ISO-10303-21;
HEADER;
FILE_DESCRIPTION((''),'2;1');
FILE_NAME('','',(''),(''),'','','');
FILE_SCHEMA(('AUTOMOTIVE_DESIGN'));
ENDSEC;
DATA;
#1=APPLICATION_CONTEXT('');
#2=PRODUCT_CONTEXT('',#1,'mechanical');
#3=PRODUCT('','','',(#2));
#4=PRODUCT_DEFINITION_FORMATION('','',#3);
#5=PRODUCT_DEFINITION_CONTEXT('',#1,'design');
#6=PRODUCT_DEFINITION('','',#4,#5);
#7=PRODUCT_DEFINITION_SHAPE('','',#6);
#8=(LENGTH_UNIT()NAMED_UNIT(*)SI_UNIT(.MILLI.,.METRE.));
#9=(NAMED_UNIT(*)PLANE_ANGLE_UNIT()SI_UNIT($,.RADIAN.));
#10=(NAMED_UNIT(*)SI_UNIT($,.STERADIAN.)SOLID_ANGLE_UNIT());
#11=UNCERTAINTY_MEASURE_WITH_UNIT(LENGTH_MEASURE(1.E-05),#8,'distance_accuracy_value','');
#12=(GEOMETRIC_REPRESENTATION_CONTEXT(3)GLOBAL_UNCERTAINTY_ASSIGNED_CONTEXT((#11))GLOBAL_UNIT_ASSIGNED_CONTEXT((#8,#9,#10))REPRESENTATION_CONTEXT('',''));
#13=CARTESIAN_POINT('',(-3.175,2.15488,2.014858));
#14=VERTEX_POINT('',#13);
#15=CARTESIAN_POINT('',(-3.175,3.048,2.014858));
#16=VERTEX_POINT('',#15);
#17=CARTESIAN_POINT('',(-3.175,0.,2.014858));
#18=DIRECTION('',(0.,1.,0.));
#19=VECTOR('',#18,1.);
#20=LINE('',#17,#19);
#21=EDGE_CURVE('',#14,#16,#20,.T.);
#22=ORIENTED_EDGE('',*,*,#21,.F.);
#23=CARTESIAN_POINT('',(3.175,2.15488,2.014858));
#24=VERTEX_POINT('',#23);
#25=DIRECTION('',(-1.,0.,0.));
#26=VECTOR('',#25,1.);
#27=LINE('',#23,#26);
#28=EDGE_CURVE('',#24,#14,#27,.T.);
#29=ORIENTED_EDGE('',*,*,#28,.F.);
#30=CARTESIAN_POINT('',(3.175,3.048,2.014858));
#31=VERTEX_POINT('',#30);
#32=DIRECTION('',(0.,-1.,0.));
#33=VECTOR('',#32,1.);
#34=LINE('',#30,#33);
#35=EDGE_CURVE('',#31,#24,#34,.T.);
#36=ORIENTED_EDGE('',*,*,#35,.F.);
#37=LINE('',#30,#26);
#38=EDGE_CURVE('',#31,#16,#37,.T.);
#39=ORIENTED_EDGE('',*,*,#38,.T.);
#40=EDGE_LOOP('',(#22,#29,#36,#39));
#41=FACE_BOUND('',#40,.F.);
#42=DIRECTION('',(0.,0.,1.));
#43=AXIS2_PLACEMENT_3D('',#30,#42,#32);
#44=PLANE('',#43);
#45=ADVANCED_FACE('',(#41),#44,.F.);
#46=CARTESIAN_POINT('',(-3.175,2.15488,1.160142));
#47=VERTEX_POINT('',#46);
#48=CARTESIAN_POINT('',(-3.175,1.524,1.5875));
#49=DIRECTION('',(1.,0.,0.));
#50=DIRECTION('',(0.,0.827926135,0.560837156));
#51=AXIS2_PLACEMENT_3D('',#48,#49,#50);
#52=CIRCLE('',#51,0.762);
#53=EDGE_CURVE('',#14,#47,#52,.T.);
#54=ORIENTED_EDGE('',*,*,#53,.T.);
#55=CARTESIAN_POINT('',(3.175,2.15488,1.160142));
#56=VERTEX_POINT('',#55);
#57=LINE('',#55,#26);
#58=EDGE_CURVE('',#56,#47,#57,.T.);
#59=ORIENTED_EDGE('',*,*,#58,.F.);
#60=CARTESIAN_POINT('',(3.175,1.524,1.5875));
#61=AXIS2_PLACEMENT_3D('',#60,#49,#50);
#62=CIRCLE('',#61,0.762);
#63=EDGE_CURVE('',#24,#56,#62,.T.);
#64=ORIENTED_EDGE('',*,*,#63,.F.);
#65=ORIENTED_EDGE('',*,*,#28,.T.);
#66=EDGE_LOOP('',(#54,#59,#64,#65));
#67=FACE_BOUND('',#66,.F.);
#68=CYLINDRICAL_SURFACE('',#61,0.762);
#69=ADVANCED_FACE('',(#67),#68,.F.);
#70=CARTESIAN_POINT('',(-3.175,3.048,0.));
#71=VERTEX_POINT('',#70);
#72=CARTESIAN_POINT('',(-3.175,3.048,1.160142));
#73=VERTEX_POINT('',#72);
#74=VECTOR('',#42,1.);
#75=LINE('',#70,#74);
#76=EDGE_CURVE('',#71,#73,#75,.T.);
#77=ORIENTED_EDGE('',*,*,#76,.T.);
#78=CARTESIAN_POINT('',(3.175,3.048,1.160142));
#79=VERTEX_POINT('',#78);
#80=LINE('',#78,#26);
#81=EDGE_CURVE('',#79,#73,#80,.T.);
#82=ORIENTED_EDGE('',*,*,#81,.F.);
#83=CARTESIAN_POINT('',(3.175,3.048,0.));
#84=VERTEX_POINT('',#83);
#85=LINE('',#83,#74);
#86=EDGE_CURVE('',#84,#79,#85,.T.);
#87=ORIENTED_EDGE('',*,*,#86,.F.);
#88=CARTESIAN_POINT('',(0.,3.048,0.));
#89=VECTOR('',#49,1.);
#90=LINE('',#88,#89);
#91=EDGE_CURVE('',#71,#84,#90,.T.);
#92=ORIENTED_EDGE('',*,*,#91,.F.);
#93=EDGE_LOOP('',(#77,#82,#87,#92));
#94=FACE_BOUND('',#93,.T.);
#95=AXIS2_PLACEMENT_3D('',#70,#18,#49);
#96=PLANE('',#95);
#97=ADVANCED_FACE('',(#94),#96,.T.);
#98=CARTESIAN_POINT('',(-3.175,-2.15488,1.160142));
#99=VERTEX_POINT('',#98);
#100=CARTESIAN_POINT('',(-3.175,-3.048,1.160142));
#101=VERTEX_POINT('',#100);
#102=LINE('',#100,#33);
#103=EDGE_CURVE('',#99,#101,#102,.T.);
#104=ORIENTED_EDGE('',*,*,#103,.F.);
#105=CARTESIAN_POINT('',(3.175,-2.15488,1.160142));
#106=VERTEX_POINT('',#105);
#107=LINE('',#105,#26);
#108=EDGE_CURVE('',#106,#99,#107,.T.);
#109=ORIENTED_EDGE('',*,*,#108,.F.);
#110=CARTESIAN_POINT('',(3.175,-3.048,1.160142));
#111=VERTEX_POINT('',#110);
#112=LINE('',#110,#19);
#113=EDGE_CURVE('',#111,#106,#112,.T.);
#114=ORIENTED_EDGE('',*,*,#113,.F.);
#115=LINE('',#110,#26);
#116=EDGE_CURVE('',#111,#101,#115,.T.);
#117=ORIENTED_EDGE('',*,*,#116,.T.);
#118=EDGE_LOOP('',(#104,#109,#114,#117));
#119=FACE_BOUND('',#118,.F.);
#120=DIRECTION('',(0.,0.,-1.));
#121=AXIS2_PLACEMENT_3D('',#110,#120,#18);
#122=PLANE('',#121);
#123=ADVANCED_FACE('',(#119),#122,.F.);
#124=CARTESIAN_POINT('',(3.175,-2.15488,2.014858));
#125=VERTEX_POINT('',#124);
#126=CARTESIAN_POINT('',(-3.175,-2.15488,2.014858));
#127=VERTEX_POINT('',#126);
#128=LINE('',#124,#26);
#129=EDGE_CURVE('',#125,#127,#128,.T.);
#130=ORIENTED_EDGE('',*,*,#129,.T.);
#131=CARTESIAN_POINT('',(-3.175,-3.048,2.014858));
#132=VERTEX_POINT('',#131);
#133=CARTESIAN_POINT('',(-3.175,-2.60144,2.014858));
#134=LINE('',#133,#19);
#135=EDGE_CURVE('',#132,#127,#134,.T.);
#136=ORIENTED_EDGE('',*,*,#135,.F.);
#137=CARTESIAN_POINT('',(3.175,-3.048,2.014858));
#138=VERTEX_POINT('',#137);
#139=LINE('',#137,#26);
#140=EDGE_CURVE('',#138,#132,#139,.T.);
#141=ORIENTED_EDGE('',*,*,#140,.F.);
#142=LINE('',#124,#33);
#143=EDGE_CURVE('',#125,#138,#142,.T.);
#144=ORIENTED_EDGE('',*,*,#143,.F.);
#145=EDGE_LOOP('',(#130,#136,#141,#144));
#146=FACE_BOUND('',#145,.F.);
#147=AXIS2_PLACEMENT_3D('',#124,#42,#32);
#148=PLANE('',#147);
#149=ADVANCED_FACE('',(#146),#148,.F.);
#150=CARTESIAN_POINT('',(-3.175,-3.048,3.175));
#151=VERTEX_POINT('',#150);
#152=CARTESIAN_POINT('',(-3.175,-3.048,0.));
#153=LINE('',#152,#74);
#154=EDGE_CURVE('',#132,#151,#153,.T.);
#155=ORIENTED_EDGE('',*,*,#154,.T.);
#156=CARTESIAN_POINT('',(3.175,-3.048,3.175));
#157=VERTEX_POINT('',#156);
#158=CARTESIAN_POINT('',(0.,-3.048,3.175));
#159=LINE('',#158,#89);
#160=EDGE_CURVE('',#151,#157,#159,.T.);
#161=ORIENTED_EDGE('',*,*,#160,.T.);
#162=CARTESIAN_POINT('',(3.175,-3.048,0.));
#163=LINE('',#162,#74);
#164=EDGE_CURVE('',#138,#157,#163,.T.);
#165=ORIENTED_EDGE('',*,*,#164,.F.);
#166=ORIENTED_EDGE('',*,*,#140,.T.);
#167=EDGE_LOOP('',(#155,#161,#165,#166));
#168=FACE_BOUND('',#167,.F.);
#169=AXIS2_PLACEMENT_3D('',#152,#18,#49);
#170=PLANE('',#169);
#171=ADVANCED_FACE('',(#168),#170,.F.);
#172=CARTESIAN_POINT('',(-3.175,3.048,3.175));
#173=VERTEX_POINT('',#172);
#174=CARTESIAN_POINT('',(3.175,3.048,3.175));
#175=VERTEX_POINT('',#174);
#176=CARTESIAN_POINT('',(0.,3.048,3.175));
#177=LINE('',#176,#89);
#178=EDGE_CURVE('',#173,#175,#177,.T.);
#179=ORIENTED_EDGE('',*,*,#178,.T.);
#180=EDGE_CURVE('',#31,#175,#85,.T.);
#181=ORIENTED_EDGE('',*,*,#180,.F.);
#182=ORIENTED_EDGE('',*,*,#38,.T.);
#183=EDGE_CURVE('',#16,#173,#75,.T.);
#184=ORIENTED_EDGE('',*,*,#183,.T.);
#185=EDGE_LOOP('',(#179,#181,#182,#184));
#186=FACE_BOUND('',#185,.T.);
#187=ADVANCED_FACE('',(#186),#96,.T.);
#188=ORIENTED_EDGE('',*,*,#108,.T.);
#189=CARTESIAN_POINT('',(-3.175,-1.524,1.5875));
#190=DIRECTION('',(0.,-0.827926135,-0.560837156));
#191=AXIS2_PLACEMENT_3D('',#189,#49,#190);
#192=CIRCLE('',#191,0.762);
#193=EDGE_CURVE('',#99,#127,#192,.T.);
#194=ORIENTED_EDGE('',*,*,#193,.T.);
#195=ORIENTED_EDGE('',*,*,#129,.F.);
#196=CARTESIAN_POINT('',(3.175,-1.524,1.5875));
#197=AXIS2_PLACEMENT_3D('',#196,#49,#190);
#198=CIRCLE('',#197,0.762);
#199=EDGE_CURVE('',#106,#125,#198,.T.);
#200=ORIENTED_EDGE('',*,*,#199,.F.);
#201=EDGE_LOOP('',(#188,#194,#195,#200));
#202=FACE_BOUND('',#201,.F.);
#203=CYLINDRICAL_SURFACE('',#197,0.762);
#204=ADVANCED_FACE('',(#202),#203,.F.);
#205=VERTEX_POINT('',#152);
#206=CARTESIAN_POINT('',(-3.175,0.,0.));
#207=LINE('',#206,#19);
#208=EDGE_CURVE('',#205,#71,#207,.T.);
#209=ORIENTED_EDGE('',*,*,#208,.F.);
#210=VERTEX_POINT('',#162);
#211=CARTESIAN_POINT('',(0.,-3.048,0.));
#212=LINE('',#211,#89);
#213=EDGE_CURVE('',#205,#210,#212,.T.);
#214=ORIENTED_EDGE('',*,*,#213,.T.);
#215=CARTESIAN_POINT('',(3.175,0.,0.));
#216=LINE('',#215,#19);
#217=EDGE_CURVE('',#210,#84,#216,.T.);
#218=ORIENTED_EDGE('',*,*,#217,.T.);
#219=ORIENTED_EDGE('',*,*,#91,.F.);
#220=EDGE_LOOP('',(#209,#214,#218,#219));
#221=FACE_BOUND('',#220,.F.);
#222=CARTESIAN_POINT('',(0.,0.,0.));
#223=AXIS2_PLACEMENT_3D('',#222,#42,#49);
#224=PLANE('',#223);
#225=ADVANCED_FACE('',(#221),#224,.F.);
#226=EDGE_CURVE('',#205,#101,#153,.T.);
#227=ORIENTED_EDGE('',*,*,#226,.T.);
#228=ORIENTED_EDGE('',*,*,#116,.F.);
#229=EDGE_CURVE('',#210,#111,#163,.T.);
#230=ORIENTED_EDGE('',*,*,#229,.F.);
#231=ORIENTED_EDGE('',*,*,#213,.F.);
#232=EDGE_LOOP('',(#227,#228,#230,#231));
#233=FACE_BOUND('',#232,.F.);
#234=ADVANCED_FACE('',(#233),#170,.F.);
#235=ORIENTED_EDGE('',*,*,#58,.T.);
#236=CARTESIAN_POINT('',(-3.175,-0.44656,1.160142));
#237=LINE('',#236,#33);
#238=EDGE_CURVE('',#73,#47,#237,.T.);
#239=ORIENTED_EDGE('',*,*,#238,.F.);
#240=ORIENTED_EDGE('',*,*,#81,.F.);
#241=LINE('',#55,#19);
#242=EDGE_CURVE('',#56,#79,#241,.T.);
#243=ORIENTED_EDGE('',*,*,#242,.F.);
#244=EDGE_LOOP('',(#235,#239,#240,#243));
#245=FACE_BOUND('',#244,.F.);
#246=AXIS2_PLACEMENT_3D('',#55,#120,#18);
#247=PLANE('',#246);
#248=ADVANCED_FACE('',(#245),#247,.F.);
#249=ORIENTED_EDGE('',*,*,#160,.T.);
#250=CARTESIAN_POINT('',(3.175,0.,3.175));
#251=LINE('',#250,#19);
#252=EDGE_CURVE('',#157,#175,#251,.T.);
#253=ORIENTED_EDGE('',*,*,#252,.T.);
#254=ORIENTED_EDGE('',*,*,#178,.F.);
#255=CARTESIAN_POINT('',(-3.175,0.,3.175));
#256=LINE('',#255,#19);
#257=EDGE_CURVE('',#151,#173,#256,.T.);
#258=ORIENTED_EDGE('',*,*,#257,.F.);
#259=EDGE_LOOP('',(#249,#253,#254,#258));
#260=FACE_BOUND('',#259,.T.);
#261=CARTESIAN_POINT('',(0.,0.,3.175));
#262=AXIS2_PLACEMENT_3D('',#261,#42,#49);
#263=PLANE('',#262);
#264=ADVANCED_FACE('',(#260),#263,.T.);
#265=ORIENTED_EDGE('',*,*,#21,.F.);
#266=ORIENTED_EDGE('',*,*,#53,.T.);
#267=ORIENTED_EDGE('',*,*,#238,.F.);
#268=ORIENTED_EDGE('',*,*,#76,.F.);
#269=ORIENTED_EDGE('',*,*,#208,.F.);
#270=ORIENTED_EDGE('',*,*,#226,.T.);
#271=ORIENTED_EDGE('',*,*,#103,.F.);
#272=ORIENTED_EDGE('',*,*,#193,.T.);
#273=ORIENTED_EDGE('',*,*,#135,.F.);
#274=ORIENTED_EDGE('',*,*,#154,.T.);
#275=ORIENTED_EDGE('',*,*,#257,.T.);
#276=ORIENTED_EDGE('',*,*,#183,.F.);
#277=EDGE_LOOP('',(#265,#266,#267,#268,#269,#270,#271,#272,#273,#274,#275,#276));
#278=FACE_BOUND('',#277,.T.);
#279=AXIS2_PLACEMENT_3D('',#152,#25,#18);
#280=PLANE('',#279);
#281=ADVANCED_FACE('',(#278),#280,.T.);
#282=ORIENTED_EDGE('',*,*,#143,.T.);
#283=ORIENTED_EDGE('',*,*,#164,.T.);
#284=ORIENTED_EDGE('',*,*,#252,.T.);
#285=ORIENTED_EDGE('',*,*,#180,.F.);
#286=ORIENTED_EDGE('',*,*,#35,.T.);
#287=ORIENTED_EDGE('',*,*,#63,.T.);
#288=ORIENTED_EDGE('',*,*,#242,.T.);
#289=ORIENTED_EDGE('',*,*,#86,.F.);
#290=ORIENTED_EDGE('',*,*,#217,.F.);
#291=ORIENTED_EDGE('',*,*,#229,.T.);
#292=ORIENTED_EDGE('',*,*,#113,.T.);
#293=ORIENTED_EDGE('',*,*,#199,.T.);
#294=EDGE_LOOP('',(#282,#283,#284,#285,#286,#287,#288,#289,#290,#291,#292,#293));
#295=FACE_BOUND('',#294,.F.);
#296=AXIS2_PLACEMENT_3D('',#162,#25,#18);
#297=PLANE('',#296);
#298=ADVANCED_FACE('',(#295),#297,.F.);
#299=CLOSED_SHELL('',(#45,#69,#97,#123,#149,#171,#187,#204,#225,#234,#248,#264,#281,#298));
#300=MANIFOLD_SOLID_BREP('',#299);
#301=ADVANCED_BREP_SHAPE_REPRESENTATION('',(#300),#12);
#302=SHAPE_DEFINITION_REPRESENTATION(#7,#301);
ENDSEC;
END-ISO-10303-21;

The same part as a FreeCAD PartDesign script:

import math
import FreeCAD as App
import Part
import Sketcher
from FreeCAD import Vector
Q = App.Units.Quantity


def add_polygon(sketch, points):
    """Adds a closed chain of lines whose ends are joined by coincident constraints."""
    first, n = sketch.GeometryCount, len(points)
    for a, b in zip(points, points[1:] + points[:1]):
        sketch.addGeometry(Part.LineSegment(App.Vector(*a, 0), App.Vector(*b, 0)), False)
    for i in range(n):
        sketch.addConstraint(Sketcher.Constraint("Coincident", first + i, 2, first + (i + 1) % n, 1))

doc = App.newDocument("Part")
body = doc.addObject("PartDesign::Body", "Body")

# Sketch on XY plane
sketch1 = body.newObject("Sketcher::SketchObject", "Sketch")
sketch1.AttachmentSupport = (doc.getObject("XY_Plane"), [""])
sketch1.MapMode = "FlatFace"
add_polygon(sketch1, [(-3.175, 3.048), (-3.175, -3.048), (3.175, -3.048), (3.175, 3.048)])  # lines 0-3
sketch1.addConstraint([
    Sketcher.Constraint("Vertical", 0),
    Sketcher.Constraint("Horizontal", 1),
    Sketcher.Constraint("Vertical", 2),
    Sketcher.Constraint("Horizontal", 3),
    Sketcher.Constraint("Symmetric", 0, 2, 2, 2, -1, 1),
    Sketcher.Constraint("DistanceX", 1, 1, 1, 2, Q("0.25 in")),
    Sketcher.Constraint("DistanceY", 0, 2, 0, 1, Q("0.24 in")),
])
pad1 = body.newObject("PartDesign::Pad", "Pad")
pad1.Profile = sketch1
pad1.Length = Q("0.125 in")

# Sketch on YZ plane
sketch2 = body.newObject("Sketcher::SketchObject", "Sketch001")
sketch2.AttachmentSupport = (doc.getObject("YZ_Plane"), [""])
sketch2.MapMode = "FlatFace"
sketch2.AttachmentOffset = App.Placement(Vector(0, 0, 0.125 * 25.4), App.Rotation())
sketch2.addGeometry([
    Part.LineSegment(Vector(3.048, 2.014858, 0), Vector(2.15488, 2.014858, 0)),  # 0
    Part.ArcOfCircle(Part.Circle(Vector(1.524, 1.5875, 0), Vector(0, 0, 1), 0.762), math.radians(34.113712), math.radians(325.886288)),  # 1
    Part.LineSegment(Vector(2.15488, 1.160142, 0), Vector(3.048, 1.160142, 0)),  # 2
    Part.LineSegment(Vector(3.048, 1.160142, 0), Vector(3.048, 2.014858, 0)),  # 3
    Part.LineSegment(Vector(-2.15488, 2.014858, 0), Vector(-3.048, 2.014858, 0)),  # 4
    Part.LineSegment(Vector(-3.048, 2.014858, 0), Vector(-3.048, 1.160142, 0)),  # 5
    Part.LineSegment(Vector(-3.048, 1.160142, 0), Vector(-2.15488, 1.160142, 0)),  # 6
    Part.ArcOfCircle(Part.Circle(Vector(-1.524, 1.5875, 0), Vector(0, 0, 1), 0.762), math.radians(-145.886288), math.radians(145.886288)),  # 7
], False)
sketch2.addConstraint([
    Sketcher.Constraint("Coincident", 0, 2, 1, 1),
    Sketcher.Constraint("Coincident", 1, 2, 2, 1),
    Sketcher.Constraint("Coincident", 2, 2, 3, 1),
    Sketcher.Constraint("Coincident", 3, 2, 0, 1),
    Sketcher.Constraint("Coincident", 4, 2, 5, 1),
    Sketcher.Constraint("Coincident", 5, 2, 6, 1),
    Sketcher.Constraint("Coincident", 6, 2, 7, 1),
    Sketcher.Constraint("Coincident", 7, 2, 4, 1),
    Sketcher.Constraint("Horizontal", 0),
    Sketcher.Constraint("Horizontal", 2),
    Sketcher.Constraint("Vertical", 3),
    Sketcher.Constraint("Horizontal", 4),
    Sketcher.Constraint("Vertical", 5),
    Sketcher.Constraint("Horizontal", 6),
    Sketcher.Constraint("Equal", 1, 7),
    Sketcher.Constraint("Symmetric", 1, 3, 7, 3, -2),
    Sketcher.Constraint("Symmetric", 3, 2, 4, 2, -2),
    Sketcher.Constraint("Horizontal", 2, 2, 5, 2),
    Sketcher.Constraint("Vertical", 0, 2, 1, 2),
    Sketcher.Constraint("Radius", 1, Q("0.03 in")),
    Sketcher.Constraint("DistanceX", -1, 1, 1, 3, Q("0.06 in")),
    Sketcher.Constraint("DistanceX", -1, 1, 2, 2, Q("0.12 in")),
    Sketcher.Constraint("DistanceY", -1, 1, 1, 3, Q("0.0625 in")),
    Sketcher.Constraint("DistanceX", 0, 2, 0, 1, Q("0.89312 mm")),
])
pocket1 = body.newObject("PartDesign::Pocket", "Pocket")
pocket1.Profile = sketch2
pocket1.Type = "ThroughAll"

doc.recompute()
